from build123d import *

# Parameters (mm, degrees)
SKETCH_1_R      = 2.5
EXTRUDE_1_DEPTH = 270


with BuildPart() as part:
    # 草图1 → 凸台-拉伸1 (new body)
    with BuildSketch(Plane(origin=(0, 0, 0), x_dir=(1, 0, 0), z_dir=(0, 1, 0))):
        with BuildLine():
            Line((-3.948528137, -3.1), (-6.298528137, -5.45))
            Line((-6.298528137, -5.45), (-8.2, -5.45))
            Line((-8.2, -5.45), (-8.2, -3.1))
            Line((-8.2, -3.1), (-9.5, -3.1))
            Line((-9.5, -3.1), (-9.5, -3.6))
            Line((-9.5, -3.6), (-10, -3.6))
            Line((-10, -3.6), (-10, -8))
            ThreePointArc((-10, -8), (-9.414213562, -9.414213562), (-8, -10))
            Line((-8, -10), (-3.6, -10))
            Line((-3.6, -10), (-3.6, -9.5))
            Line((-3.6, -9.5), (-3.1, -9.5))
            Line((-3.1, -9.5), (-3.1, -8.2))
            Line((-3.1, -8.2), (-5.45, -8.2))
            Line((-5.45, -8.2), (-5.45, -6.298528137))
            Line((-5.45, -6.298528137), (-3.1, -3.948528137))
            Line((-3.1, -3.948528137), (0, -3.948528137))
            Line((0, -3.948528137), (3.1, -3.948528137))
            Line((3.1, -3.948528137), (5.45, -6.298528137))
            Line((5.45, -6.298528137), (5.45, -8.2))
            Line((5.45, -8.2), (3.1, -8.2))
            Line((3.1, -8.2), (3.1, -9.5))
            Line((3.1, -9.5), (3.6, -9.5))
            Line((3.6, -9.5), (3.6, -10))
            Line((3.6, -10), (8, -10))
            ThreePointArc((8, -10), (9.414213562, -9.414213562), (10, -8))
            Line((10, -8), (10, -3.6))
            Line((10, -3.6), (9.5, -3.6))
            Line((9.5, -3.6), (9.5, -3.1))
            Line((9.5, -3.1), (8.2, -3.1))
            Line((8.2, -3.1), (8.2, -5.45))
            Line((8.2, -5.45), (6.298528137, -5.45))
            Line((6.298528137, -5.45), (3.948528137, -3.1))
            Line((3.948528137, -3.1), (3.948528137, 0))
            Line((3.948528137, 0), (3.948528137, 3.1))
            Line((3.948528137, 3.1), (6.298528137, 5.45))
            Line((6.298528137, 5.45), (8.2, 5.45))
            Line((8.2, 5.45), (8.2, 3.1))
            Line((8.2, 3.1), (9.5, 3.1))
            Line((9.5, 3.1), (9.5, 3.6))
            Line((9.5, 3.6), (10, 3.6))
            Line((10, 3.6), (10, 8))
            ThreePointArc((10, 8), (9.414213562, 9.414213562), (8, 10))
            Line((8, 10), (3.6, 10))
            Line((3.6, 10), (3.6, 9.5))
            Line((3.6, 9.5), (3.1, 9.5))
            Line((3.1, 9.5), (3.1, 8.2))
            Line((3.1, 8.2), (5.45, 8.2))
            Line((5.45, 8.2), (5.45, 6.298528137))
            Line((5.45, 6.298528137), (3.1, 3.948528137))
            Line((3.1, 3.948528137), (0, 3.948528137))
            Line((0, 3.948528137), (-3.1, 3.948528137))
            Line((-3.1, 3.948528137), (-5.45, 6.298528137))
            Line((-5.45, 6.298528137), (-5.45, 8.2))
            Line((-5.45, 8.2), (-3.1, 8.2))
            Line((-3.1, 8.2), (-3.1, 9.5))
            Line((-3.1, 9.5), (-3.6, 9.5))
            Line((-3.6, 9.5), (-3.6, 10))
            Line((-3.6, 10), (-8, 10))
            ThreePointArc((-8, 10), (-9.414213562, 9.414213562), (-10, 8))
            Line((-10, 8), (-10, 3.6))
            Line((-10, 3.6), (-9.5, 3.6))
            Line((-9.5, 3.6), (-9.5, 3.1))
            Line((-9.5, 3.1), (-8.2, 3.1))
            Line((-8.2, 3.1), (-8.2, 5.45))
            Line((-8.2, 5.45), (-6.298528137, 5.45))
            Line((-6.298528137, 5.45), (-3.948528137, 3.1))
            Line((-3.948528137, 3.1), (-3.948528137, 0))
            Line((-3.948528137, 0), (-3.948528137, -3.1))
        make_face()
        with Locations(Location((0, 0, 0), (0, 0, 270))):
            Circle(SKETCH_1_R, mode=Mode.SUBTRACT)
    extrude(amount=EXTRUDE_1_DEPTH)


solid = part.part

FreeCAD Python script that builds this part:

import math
import FreeCAD as App
import Part
import Sketcher

doc = App.newDocument("Part")
body = doc.addObject("PartDesign::Body", "Body")

sketch1 = body.newObject("Sketcher::SketchObject", "Sketch")
sketch1.AttachmentSupport = (doc.getObject("XZ_Plane"), [""])
sketch1.MapMode = "FlatFace"
sketch1.addGeometry([
    Part.LineSegment(App.Vector(-3.9, 3.1, 0), App.Vector(-6.3, 5.5, 0)),
    Part.LineSegment(App.Vector(-6.3, 5.5, 0), App.Vector(-8.2, 5.5, 0)),
    Part.LineSegment(App.Vector(-8.2, 5.5, 0), App.Vector(-8.2, 3.1, 0)),
    Part.LineSegment(App.Vector(-8.2, 3.1, 0), App.Vector(-9.5, 3.1, 0)),
    Part.LineSegment(App.Vector(-9.5, 3.1, 0), App.Vector(-9.5, 3.6, 0)),
    Part.LineSegment(App.Vector(-9.5, 3.6, 0), App.Vector(-10, 3.6, 0)),
    Part.LineSegment(App.Vector(-10, 3.6, 0), App.Vector(-10, 8, 0)),
    Part.ArcOfCircle(Part.Circle(App.Vector(-8, 8, 0), App.Vector(0, 0, 1), 2), math.radians(90), math.radians(180)),
    Part.LineSegment(App.Vector(-8, 10, 0), App.Vector(-3.6, 10, 0)),
    Part.LineSegment(App.Vector(-3.6, 10, 0), App.Vector(-3.6, 9.5, 0)),
    Part.LineSegment(App.Vector(-3.6, 9.5, 0), App.Vector(-3.1, 9.5, 0)),
    Part.LineSegment(App.Vector(-3.1, 9.5, 0), App.Vector(-3.1, 8.2, 0)),
    Part.LineSegment(App.Vector(-3.1, 8.2, 0), App.Vector(-5.5, 8.2, 0)),
    Part.LineSegment(App.Vector(-5.5, 8.2, 0), App.Vector(-5.5, 6.3, 0)),
    Part.LineSegment(App.Vector(-5.5, 6.3, 0), App.Vector(-3.1, 3.9, 0)),
    Part.LineSegment(App.Vector(-3.1, 3.9, 0), App.Vector(3.1, 3.9, 0)),
    Part.LineSegment(App.Vector(3.1, 3.9, 0), App.Vector(5.5, 6.3, 0)),
    Part.LineSegment(App.Vector(5.5, 6.3, 0), App.Vector(5.5, 8.2, 0)),
    Part.LineSegment(App.Vector(5.5, 8.2, 0), App.Vector(3.1, 8.2, 0)),
    Part.LineSegment(App.Vector(3.1, 8.2, 0), App.Vector(3.1, 9.5, 0)),
    Part.LineSegment(App.Vector(3.1, 9.5, 0), App.Vector(3.6, 9.5, 0)),
    Part.LineSegment(App.Vector(3.6, 9.5, 0), App.Vector(3.6, 10, 0)),
    Part.LineSegment(App.Vector(3.6, 10, 0), App.Vector(8, 10, 0)),
    Part.ArcOfCircle(Part.Circle(App.Vector(8, 8, 0), App.Vector(0, 0, 1), 2), math.radians(0), math.radians(90)),
    Part.LineSegment(App.Vector(10, 8, 0), App.Vector(10, 3.6, 0)),
    Part.LineSegment(App.Vector(10, 3.6, 0), App.Vector(9.5, 3.6, 0)),
    Part.LineSegment(App.Vector(9.5, 3.6, 0), App.Vector(9.5, 3.1, 0)),
    Part.LineSegment(App.Vector(9.5, 3.1, 0), App.Vector(8.2, 3.1, 0)),
    Part.LineSegment(App.Vector(8.2, 3.1, 0), App.Vector(8.2, 5.5, 0)),
    Part.LineSegment(App.Vector(8.2, 5.5, 0), App.Vector(6.3, 5.5, 0)),
    Part.LineSegment(App.Vector(6.3, 5.5, 0), App.Vector(3.9, 3.1, 0)),
    Part.LineSegment(App.Vector(3.9, 3.1, 0), App.Vector(3.9, -3.1, 0)),
    Part.LineSegment(App.Vector(3.9, -3.1, 0), App.Vector(6.3, -5.5, 0)),
    Part.LineSegment(App.Vector(6.3, -5.5, 0), App.Vector(8.2, -5.5, 0)),
    Part.LineSegment(App.Vector(8.2, -5.5, 0), App.Vector(8.2, -3.1, 0)),
    Part.LineSegment(App.Vector(8.2, -3.1, 0), App.Vector(9.5, -3.1, 0)),
    Part.LineSegment(App.Vector(9.5, -3.1, 0), App.Vector(9.5, -3.6, 0)),
    Part.LineSegment(App.Vector(9.5, -3.6, 0), App.Vector(10, -3.6, 0)),
    Part.LineSegment(App.Vector(10, -3.6, 0), App.Vector(10, -8, 0)),
    Part.ArcOfCircle(Part.Circle(App.Vector(8, -8, 0), App.Vector(0, 0, 1), 2), math.radians(-90), math.radians(0)),
    Part.LineSegment(App.Vector(8, -10, 0), App.Vector(3.6, -10, 0)),
    Part.LineSegment(App.Vector(3.6, -10, 0), App.Vector(3.6, -9.5, 0)),
    Part.LineSegment(App.Vector(3.6, -9.5, 0), App.Vector(3.1, -9.5, 0)),
    Part.LineSegment(App.Vector(3.1, -9.5, 0), App.Vector(3.1, -8.2, 0)),
    Part.LineSegment(App.Vector(3.1, -8.2, 0), App.Vector(5.5, -8.2, 0)),
    Part.LineSegment(App.Vector(5.5, -8.2, 0), App.Vector(5.5, -6.3, 0)),
    Part.LineSegment(App.Vector(5.5, -6.3, 0), App.Vector(3.1, -3.9, 0)),
    Part.LineSegment(App.Vector(3.1, -3.9, 0), App.Vector(-3.1, -3.9, 0)),
    Part.LineSegment(App.Vector(-3.1, -3.9, 0), App.Vector(-5.5, -6.3, 0)),
    Part.LineSegment(App.Vector(-5.5, -6.3, 0), App.Vector(-5.5, -8.2, 0)),
    Part.LineSegment(App.Vector(-5.5, -8.2, 0), App.Vector(-3.1, -8.2, 0)),
    Part.LineSegment(App.Vector(-3.1, -8.2, 0), App.Vector(-3.1, -9.5, 0)),
    Part.LineSegment(App.Vector(-3.1, -9.5, 0), App.Vector(-3.6, -9.5, 0)),
    Part.LineSegment(App.Vector(-3.6, -9.5, 0), App.Vector(-3.6, -10, 0)),
    Part.LineSegment(App.Vector(-3.6, -10, 0), App.Vector(-8, -10, 0)),
    Part.ArcOfCircle(Part.Circle(App.Vector(-8, -8, 0), App.Vector(0, 0, 1), 2), math.radians(-180), math.radians(-90)),
    Part.LineSegment(App.Vector(-10, -8, 0), App.Vector(-10, -3.6, 0)),
    Part.LineSegment(App.Vector(-10, -3.6, 0), App.Vector(-9.5, -3.6, 0)),
    Part.LineSegment(App.Vector(-9.5, -3.6, 0), App.Vector(-9.5, -3.1, 0)),
    Part.LineSegment(App.Vector(-9.5, -3.1, 0), App.Vector(-8.2, -3.1, 0)),
    Part.LineSegment(App.Vector(-8.2, -3.1, 0), App.Vector(-8.2, -5.5, 0)),
    Part.LineSegment(App.Vector(-8.2, -5.5, 0), App.Vector(-6.3, -5.5, 0)),
    Part.LineSegment(App.Vector(-6.3, -5.5, 0), App.Vector(-3.9, -3.1, 0)),
    Part.LineSegment(App.Vector(-3.9, -3.1, 0), App.Vector(-3.9, 3.1, 0)),
    Part.Circle(App.Vector(0, 0, 0), App.Vector(0, 0, 1), 2.5),
], False)
sketch1.addConstraint([
    Sketcher.Constraint("Coincident", 0, 2, 1, 1),
    Sketcher.Constraint("Coincident", 1, 2, 2, 1),
    Sketcher.Constraint("Coincident", 2, 2, 3, 1),
    Sketcher.Constraint("Coincident", 3, 2, 4, 1),
    Sketcher.Constraint("Coincident", 4, 2, 5, 1),
    Sketcher.Constraint("Coincident", 5, 2, 6, 1),
    Sketcher.Constraint("Tangent", 6, 2, 7, 2),
    Sketcher.Constraint("Tangent", 7, 1, 8, 1),
    Sketcher.Constraint("Coincident", 8, 2, 9, 1),
    Sketcher.Constraint("Coincident", 9, 2, 10, 1),
    Sketcher.Constraint("Coincident", 10, 2, 11, 1),
    Sketcher.Constraint("Coincident", 11, 2, 12, 1),
    Sketcher.Constraint("Coincident", 12, 2, 13, 1),
    Sketcher.Constraint("Coincident", 13, 2, 14, 1),
    Sketcher.Constraint("Coincident", 14, 2, 15, 1),
    Sketcher.Constraint("Coincident", 15, 2, 16, 1),
    Sketcher.Constraint("Coincident", 16, 2, 17, 1),
    Sketcher.Constraint("Coincident", 17, 2, 18, 1),
    Sketcher.Constraint("Coincident", 18, 2, 19, 1),
    Sketcher.Constraint("Coincident", 19, 2, 20, 1),
    Sketcher.Constraint("Coincident", 20, 2, 21, 1),
    Sketcher.Constraint("Coincident", 21, 2, 22, 1),
    Sketcher.Constraint("Tangent", 22, 2, 23, 2),
    Sketcher.Constraint("Tangent", 23, 1, 24, 1),
    Sketcher.Constraint("Coincident", 24, 2, 25, 1),
    Sketcher.Constraint("Coincident", 25, 2, 26, 1),
    Sketcher.Constraint("Coincident", 26, 2, 27, 1),
    Sketcher.Constraint("Coincident", 27, 2, 28, 1),
    Sketcher.Constraint("Coincident", 28, 2, 29, 1),
    Sketcher.Constraint("Coincident", 29, 2, 30, 1),
    Sketcher.Constraint("Coincident", 30, 2, 31, 1),
    Sketcher.Constraint("Coincident", 31, 2, 32, 1),
    Sketcher.Constraint("Coincident", 32, 2, 33, 1),
    Sketcher.Constraint("Coincident", 33, 2, 34, 1),
    Sketcher.Constraint("Coincident", 34, 2, 35, 1),
    Sketcher.Constraint("Coincident", 35, 2, 36, 1),
    Sketcher.Constraint("Coincident", 36, 2, 37, 1),
    Sketcher.Constraint("Coincident", 37, 2, 38, 1),
    Sketcher.Constraint("Tangent", 38, 2, 39, 2),
    Sketcher.Constraint("Tangent", 39, 1, 40, 1),
    Sketcher.Constraint("Coincident", 40, 2, 41, 1),
    Sketcher.Constraint("Coincident", 41, 2, 42, 1),
    Sketcher.Constraint("Coincident", 42, 2, 43, 1),
    Sketcher.Constraint("Coincident", 43, 2, 44, 1),
    Sketcher.Constraint("Coincident", 44, 2, 45, 1),
    Sketcher.Constraint("Coincident", 45, 2, 46, 1),
    Sketcher.Constraint("Coincident", 46, 2, 47, 1),
    Sketcher.Constraint("Coincident", 47, 2, 48, 1),
    Sketcher.Constraint("Coincident", 48, 2, 49, 1),
    Sketcher.Constraint("Coincident", 49, 2, 50, 1),
    Sketcher.Constraint("Coincident", 50, 2, 51, 1),
    Sketcher.Constraint("Coincident", 51, 2, 52, 1),
    Sketcher.Constraint("Coincident", 52, 2, 53, 1),
    Sketcher.Constraint("Coincident", 53, 2, 54, 1),
    Sketcher.Constraint("Tangent", 54, 2, 55, 2),
    Sketcher.Constraint("Tangent", 55, 1, 56, 1),
    Sketcher.Constraint("Coincident", 56, 2, 57, 1),
    Sketcher.Constraint("Coincident", 57, 2, 58, 1),
    Sketcher.Constraint("Coincident", 58, 2, 59, 1),
    Sketcher.Constraint("Coincident", 59, 2, 60, 1),
    Sketcher.Constraint("Coincident", 60, 2, 61, 1),
    Sketcher.Constraint("Coincident", 61, 2, 62, 1),
    Sketcher.Constraint("Coincident", 62, 2, 63, 1),
    Sketcher.Constraint("Coincident", 63, 2, 0, 1),
    Sketcher.Constraint("Horizontal", 1),
    Sketcher.Constraint("Vertical", 2),
    Sketcher.Constraint("Horizontal", 3),
    Sketcher.Constraint("Vertical", 4),
    Sketcher.Constraint("Horizontal", 5),
    Sketcher.Constraint("Vertical", 6),
    Sketcher.Constraint("Horizontal", 8),
    Sketcher.Constraint("Vertical", 9),
    Sketcher.Constraint("Horizontal", 10),
    Sketcher.Constraint("Vertical", 11),
    Sketcher.Constraint("Horizontal", 12),
    Sketcher.Constraint("Vertical", 13),
    Sketcher.Constraint("Horizontal", 15),
    Sketcher.Constraint("Vertical", 17),
    Sketcher.Constraint("Horizontal", 18),
    Sketcher.Constraint("Vertical", 19),
    Sketcher.Constraint("Horizontal", 20),
    Sketcher.Constraint("Vertical", 21),
    Sketcher.Constraint("Horizontal", 22),
    Sketcher.Constraint("Vertical", 24),
    Sketcher.Constraint("Horizontal", 25),
    Sketcher.Constraint("Vertical", 26),
    Sketcher.Constraint("Horizontal", 27),
    Sketcher.Constraint("Vertical", 28),
    Sketcher.Constraint("Horizontal", 29),
    Sketcher.Constraint("Vertical", 31),
    Sketcher.Constraint("Horizontal", 33),
    Sketcher.Constraint("Vertical", 34),
    Sketcher.Constraint("Horizontal", 35),
    Sketcher.Constraint("Vertical", 36),
    Sketcher.Constraint("Horizontal", 37),
    Sketcher.Constraint("Vertical", 38),
    Sketcher.Constraint("Horizontal", 40),
    Sketcher.Constraint("Vertical", 41),
    Sketcher.Constraint("Horizontal", 42),
    Sketcher.Constraint("Vertical", 43),
    Sketcher.Constraint("Horizontal", 44),
    Sketcher.Constraint("Vertical", 45),
    Sketcher.Constraint("Horizontal", 47),
    Sketcher.Constraint("Vertical", 49),
    Sketcher.Constraint("Horizontal", 50),
    Sketcher.Constraint("Vertical", 51),
    Sketcher.Constraint("Horizontal", 52),
    Sketcher.Constraint("Vertical", 53),
    Sketcher.Constraint("Horizontal", 54),
    Sketcher.Constraint("Vertical", 56),
    Sketcher.Constraint("Horizontal", 57),
    Sketcher.Constraint("Vertical", 58),
    Sketcher.Constraint("Horizontal", 59),
    Sketcher.Constraint("Vertical", 60),
    Sketcher.Constraint("Horizontal", 61),
    Sketcher.Constraint("Vertical", 63),
    Sketcher.Constraint("Coincident", 64, 3, -1, 1),
    Sketcher.Constraint("Equal", 7, 23),
    Sketcher.Constraint("Equal", 23, 39),
    Sketcher.Constraint("Equal", 39, 55),
    Sketcher.Constraint("Symmetric", 7, 3, 39, 3, -1, 1),
    Sketcher.Constraint("Symmetric", 23, 3, 55, 3, -1, 1),
    Sketcher.Constraint("Symmetric", 0, 2, 32, 2, -1, 1),
    Sketcher.Constraint("Symmetric", 2, 2, 34, 2, -1, 1),
    Sketcher.Constraint("Symmetric", 4, 2, 36, 2, -1, 1),
    Sketcher.Constraint("Symmetric", 9, 2, 41, 2, -1, 1),
    Sketcher.Constraint("Symmetric", 11, 2, 43, 2, -1, 1),
    Sketcher.Constraint("Symmetric", 13, 2, 45, 2, -1, 1),
    Sketcher.Constraint("Symmetric", 14, 2, 46, 2, -1, 1),
    Sketcher.Constraint("Symmetric", 16, 2, 48, 2, -1, 1),
    Sketcher.Constraint("Symmetric", 18, 2, 50, 2, -1, 1),
    Sketcher.Constraint("Symmetric", 20, 2, 52, 2, -1, 1),
    Sketcher.Constraint("Symmetric", 25, 2, 57, 2, -1, 1),
    Sketcher.Constraint("Symmetric", 27, 2, 59, 2, -1, 1),
    Sketcher.Constraint("Symmetric", 29, 2, 61, 2, -1, 1),
    Sketcher.Constraint("Symmetric", 30, 2, 62, 2, -1, 1),
    Sketcher.Constraint("Symmetric", 7, 3, 23, 3, -2),
    Sketcher.Constraint("Symmetric", 13, 2, 16, 2, -2),
    Sketcher.Constraint("Symmetric", 11, 2, 18, 2, -2),
    Sketcher.Constraint("Symmetric", 9, 2, 20, 2, -2),
    Sketcher.Constraint("Symmetric", 4, 2, 25, 2, -2),
    Sketcher.Constraint("Symmetric", 2, 2, 27, 2, -2),
    Sketcher.Constraint("Symmetric", 0, 2, 29, 2, -2),
    Sketcher.Constraint("Parallel", 0, 14),
    Sketcher.Constraint("Perpendicular", 14, 16),
    Sketcher.Constraint("Parallel", 16, 30),
    Sketcher.Constraint("Perpendicular", 30, 32),
    Sketcher.Constraint("Perpendicular", 46, 48),
    Sketcher.Constraint("Horizontal", 27, 2, 30, 2),
    Sketcher.Constraint("Horizontal", 31, 2, 34, 2),
    Sketcher.Constraint("Vertical", 11, 2, 14, 2),
    Sketcher.Constraint("Equal", 5, 10),
    Sketcher.Constraint("Equal", 50, 2),
    Sketcher.Constraint("Equal", 57, 4),
    Sketcher.Constraint("Equal", 54, 6),
    Sketcher.Constraint("Equal", 4, 9),
    Sketcher.Constraint("Equal", 59, 11),
    Sketcher.Constraint("Equal", 61, 13),
    Sketcher.Constraint("Equal", 47, 31),
    Sketcher.Constraint("Diameter", 64, 5.0),
    Sketcher.Constraint("Radius", 7, 2.0),
    Sketcher.Constraint("DistanceX", 3, 2, 3, 1, 1.3),
    Sketcher.Constraint("DistanceX", 5, 2, 5, 1, 0.5),
    Sketcher.Constraint("DistanceX", 8, 1, 8, 2, 4.4),
    Sketcher.Constraint("DistanceX", 15, 1, 15, 2, 6.2),
    Sketcher.Constraint("DistanceX", 12, 2, 12, 1, 2.35),
    Sketcher.Constraint("DistanceX", 1, 2, 1, 1, 1.901472),
])
pad1 = body.newObject("PartDesign::Pad", "Pad")
pad1.Profile = sketch1
pad1.Length = 270
pad1.Reversed = True

doc.recompute()
